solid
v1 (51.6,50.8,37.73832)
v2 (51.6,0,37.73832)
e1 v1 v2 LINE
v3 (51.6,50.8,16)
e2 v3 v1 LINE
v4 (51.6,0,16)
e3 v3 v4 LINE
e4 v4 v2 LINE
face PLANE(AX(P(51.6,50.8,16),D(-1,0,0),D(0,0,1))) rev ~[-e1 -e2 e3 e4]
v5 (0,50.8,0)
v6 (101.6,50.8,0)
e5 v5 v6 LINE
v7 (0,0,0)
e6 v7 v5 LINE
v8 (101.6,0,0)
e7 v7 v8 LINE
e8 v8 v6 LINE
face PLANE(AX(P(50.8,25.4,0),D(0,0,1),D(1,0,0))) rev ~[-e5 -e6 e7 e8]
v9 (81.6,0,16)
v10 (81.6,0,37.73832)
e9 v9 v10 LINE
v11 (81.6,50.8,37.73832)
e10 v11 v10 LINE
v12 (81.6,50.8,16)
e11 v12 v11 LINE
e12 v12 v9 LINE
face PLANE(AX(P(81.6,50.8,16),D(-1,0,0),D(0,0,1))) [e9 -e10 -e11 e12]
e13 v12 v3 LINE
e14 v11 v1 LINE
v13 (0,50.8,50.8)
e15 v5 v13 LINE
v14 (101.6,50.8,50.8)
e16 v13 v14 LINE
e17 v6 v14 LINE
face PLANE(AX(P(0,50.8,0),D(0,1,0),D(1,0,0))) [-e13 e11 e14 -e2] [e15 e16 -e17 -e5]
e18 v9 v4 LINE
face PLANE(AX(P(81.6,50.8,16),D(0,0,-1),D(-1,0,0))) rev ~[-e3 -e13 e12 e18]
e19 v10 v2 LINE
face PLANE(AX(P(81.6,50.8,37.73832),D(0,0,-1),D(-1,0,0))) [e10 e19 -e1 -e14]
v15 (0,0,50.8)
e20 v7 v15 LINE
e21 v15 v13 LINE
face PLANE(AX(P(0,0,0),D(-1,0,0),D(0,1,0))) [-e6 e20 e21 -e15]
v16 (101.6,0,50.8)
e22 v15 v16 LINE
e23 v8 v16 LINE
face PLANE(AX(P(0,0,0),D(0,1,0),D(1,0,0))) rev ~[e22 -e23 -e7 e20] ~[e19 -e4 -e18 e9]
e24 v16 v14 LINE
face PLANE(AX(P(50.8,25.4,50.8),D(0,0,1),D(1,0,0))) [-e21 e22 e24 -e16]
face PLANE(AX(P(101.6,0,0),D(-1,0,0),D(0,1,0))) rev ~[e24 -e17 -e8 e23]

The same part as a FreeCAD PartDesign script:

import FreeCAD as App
import Part
import Sketcher
Q = App.Units.Quantity

doc = App.newDocument("Part")
body = doc.addObject("PartDesign::Body", "Body")

# Sketch on XY plane
sketch1 = body.newObject("Sketcher::SketchObject", "Sketch")
sketch1.AttachmentSupport = (doc.getObject("XY_Plane"), [""])
sketch1.MapMode = "FlatFace"
sketch1.addGeometry(Part.LineSegment(App.Vector(0, 51, 0), App.Vector(0, 0, 0)), False)
sketch1.addGeometry(Part.LineSegment(App.Vector(0, 0, 0), App.Vector(102, 0, 0)), False)
sketch1.addGeometry(Part.LineSegment(App.Vector(102, 0, 0), App.Vector(102, 51, 0)), False)
sketch1.addGeometry(Part.LineSegment(App.Vector(102, 51, 0), App.Vector(0, 51, 0)), False)
sketch1.addConstraint(Sketcher.Constraint("Coincident", 0, 2, 1, 1))
sketch1.addConstraint(Sketcher.Constraint("Coincident", 1, 2, 2, 1))
sketch1.addConstraint(Sketcher.Constraint("Coincident", 2, 2, 3, 1))
sketch1.addConstraint(Sketcher.Constraint("Coincident", 3, 2, 0, 1))
sketch1.addConstraint(Sketcher.Constraint("Vertical", 0))
sketch1.addConstraint(Sketcher.Constraint("Horizontal", 1))
sketch1.addConstraint(Sketcher.Constraint("Vertical", 2))
sketch1.addConstraint(Sketcher.Constraint("Horizontal", 3))
sketch1.addConstraint(Sketcher.Constraint("Coincident", 0, 2, -1, 1))
sketch1.addConstraint(Sketcher.Constraint("DistanceX", 1, 1, 1, 2, Q("4 in")))
sketch1.addConstraint(Sketcher.Constraint("DistanceY", 0, 2, 0, 1, Q("2 in")))
pad1 = body.newObject("PartDesign::Pad", "Pad")
pad1.Profile = sketch1
pad1.Length = Q("2 in")

# Sketch on XZ plane
sketch2 = body.newObject("Sketcher::SketchObject", "Sketch001")
sketch2.AttachmentSupport = (doc.getObject("XZ_Plane"), [""])
sketch2.MapMode = "FlatFace"
sketch2.AttachmentOffset = App.Placement(App.Vector(0, 0, -2 * 25.4), App.Rotation())
sketch2.addGeometry(Part.LineSegment(App.Vector(82, 38, 0), App.Vector(82, 16, 0)), False)
sketch2.addGeometry(Part.LineSegment(App.Vector(82, 16, 0), App.Vector(52, 16, 0)), False)
sketch2.addGeometry(Part.LineSegment(App.Vector(52, 16, 0), App.Vector(52, 38, 0)), False)
sketch2.addGeometry(Part.LineSegment(App.Vector(52, 38, 0), App.Vector(82, 38, 0)), False)
sketch2.addConstraint(Sketcher.Constraint("Coincident", 0, 2, 1, 1))
sketch2.addConstraint(Sketcher.Constraint("Coincident", 1, 2, 2, 1))
sketch2.addConstraint(Sketcher.Constraint("Coincident", 2, 2, 3, 1))
sketch2.addConstraint(Sketcher.Constraint("Coincident", 3, 2, 0, 1))
sketch2.addConstraint(Sketcher.Constraint("Vertical", 0))
sketch2.addConstraint(Sketcher.Constraint("Horizontal", 1))
sketch2.addConstraint(Sketcher.Constraint("Vertical", 2))
sketch2.addConstraint(Sketcher.Constraint("Horizontal", 3))
sketch2.addConstraint(Sketcher.Constraint("DistanceX", 1, 2, 1, 1, 30.0))
sketch2.addConstraint(Sketcher.Constraint("DistanceY", 0, 2, 0, 1, 21.73832))
sketch2.addConstraint(Sketcher.Constraint("DistanceX", -1, 1, 0, 2, 81.6))
sketch2.addConstraint(Sketcher.Constraint("DistanceY", -1, 1, 0, 2, 16.0))
pocket1 = body.newObject("PartDesign::Pocket", "Pocket")
pocket1.Profile = sketch2
pocket1.Type = "ThroughAll"
pocket1.Reversed = True

doc.recompute()
